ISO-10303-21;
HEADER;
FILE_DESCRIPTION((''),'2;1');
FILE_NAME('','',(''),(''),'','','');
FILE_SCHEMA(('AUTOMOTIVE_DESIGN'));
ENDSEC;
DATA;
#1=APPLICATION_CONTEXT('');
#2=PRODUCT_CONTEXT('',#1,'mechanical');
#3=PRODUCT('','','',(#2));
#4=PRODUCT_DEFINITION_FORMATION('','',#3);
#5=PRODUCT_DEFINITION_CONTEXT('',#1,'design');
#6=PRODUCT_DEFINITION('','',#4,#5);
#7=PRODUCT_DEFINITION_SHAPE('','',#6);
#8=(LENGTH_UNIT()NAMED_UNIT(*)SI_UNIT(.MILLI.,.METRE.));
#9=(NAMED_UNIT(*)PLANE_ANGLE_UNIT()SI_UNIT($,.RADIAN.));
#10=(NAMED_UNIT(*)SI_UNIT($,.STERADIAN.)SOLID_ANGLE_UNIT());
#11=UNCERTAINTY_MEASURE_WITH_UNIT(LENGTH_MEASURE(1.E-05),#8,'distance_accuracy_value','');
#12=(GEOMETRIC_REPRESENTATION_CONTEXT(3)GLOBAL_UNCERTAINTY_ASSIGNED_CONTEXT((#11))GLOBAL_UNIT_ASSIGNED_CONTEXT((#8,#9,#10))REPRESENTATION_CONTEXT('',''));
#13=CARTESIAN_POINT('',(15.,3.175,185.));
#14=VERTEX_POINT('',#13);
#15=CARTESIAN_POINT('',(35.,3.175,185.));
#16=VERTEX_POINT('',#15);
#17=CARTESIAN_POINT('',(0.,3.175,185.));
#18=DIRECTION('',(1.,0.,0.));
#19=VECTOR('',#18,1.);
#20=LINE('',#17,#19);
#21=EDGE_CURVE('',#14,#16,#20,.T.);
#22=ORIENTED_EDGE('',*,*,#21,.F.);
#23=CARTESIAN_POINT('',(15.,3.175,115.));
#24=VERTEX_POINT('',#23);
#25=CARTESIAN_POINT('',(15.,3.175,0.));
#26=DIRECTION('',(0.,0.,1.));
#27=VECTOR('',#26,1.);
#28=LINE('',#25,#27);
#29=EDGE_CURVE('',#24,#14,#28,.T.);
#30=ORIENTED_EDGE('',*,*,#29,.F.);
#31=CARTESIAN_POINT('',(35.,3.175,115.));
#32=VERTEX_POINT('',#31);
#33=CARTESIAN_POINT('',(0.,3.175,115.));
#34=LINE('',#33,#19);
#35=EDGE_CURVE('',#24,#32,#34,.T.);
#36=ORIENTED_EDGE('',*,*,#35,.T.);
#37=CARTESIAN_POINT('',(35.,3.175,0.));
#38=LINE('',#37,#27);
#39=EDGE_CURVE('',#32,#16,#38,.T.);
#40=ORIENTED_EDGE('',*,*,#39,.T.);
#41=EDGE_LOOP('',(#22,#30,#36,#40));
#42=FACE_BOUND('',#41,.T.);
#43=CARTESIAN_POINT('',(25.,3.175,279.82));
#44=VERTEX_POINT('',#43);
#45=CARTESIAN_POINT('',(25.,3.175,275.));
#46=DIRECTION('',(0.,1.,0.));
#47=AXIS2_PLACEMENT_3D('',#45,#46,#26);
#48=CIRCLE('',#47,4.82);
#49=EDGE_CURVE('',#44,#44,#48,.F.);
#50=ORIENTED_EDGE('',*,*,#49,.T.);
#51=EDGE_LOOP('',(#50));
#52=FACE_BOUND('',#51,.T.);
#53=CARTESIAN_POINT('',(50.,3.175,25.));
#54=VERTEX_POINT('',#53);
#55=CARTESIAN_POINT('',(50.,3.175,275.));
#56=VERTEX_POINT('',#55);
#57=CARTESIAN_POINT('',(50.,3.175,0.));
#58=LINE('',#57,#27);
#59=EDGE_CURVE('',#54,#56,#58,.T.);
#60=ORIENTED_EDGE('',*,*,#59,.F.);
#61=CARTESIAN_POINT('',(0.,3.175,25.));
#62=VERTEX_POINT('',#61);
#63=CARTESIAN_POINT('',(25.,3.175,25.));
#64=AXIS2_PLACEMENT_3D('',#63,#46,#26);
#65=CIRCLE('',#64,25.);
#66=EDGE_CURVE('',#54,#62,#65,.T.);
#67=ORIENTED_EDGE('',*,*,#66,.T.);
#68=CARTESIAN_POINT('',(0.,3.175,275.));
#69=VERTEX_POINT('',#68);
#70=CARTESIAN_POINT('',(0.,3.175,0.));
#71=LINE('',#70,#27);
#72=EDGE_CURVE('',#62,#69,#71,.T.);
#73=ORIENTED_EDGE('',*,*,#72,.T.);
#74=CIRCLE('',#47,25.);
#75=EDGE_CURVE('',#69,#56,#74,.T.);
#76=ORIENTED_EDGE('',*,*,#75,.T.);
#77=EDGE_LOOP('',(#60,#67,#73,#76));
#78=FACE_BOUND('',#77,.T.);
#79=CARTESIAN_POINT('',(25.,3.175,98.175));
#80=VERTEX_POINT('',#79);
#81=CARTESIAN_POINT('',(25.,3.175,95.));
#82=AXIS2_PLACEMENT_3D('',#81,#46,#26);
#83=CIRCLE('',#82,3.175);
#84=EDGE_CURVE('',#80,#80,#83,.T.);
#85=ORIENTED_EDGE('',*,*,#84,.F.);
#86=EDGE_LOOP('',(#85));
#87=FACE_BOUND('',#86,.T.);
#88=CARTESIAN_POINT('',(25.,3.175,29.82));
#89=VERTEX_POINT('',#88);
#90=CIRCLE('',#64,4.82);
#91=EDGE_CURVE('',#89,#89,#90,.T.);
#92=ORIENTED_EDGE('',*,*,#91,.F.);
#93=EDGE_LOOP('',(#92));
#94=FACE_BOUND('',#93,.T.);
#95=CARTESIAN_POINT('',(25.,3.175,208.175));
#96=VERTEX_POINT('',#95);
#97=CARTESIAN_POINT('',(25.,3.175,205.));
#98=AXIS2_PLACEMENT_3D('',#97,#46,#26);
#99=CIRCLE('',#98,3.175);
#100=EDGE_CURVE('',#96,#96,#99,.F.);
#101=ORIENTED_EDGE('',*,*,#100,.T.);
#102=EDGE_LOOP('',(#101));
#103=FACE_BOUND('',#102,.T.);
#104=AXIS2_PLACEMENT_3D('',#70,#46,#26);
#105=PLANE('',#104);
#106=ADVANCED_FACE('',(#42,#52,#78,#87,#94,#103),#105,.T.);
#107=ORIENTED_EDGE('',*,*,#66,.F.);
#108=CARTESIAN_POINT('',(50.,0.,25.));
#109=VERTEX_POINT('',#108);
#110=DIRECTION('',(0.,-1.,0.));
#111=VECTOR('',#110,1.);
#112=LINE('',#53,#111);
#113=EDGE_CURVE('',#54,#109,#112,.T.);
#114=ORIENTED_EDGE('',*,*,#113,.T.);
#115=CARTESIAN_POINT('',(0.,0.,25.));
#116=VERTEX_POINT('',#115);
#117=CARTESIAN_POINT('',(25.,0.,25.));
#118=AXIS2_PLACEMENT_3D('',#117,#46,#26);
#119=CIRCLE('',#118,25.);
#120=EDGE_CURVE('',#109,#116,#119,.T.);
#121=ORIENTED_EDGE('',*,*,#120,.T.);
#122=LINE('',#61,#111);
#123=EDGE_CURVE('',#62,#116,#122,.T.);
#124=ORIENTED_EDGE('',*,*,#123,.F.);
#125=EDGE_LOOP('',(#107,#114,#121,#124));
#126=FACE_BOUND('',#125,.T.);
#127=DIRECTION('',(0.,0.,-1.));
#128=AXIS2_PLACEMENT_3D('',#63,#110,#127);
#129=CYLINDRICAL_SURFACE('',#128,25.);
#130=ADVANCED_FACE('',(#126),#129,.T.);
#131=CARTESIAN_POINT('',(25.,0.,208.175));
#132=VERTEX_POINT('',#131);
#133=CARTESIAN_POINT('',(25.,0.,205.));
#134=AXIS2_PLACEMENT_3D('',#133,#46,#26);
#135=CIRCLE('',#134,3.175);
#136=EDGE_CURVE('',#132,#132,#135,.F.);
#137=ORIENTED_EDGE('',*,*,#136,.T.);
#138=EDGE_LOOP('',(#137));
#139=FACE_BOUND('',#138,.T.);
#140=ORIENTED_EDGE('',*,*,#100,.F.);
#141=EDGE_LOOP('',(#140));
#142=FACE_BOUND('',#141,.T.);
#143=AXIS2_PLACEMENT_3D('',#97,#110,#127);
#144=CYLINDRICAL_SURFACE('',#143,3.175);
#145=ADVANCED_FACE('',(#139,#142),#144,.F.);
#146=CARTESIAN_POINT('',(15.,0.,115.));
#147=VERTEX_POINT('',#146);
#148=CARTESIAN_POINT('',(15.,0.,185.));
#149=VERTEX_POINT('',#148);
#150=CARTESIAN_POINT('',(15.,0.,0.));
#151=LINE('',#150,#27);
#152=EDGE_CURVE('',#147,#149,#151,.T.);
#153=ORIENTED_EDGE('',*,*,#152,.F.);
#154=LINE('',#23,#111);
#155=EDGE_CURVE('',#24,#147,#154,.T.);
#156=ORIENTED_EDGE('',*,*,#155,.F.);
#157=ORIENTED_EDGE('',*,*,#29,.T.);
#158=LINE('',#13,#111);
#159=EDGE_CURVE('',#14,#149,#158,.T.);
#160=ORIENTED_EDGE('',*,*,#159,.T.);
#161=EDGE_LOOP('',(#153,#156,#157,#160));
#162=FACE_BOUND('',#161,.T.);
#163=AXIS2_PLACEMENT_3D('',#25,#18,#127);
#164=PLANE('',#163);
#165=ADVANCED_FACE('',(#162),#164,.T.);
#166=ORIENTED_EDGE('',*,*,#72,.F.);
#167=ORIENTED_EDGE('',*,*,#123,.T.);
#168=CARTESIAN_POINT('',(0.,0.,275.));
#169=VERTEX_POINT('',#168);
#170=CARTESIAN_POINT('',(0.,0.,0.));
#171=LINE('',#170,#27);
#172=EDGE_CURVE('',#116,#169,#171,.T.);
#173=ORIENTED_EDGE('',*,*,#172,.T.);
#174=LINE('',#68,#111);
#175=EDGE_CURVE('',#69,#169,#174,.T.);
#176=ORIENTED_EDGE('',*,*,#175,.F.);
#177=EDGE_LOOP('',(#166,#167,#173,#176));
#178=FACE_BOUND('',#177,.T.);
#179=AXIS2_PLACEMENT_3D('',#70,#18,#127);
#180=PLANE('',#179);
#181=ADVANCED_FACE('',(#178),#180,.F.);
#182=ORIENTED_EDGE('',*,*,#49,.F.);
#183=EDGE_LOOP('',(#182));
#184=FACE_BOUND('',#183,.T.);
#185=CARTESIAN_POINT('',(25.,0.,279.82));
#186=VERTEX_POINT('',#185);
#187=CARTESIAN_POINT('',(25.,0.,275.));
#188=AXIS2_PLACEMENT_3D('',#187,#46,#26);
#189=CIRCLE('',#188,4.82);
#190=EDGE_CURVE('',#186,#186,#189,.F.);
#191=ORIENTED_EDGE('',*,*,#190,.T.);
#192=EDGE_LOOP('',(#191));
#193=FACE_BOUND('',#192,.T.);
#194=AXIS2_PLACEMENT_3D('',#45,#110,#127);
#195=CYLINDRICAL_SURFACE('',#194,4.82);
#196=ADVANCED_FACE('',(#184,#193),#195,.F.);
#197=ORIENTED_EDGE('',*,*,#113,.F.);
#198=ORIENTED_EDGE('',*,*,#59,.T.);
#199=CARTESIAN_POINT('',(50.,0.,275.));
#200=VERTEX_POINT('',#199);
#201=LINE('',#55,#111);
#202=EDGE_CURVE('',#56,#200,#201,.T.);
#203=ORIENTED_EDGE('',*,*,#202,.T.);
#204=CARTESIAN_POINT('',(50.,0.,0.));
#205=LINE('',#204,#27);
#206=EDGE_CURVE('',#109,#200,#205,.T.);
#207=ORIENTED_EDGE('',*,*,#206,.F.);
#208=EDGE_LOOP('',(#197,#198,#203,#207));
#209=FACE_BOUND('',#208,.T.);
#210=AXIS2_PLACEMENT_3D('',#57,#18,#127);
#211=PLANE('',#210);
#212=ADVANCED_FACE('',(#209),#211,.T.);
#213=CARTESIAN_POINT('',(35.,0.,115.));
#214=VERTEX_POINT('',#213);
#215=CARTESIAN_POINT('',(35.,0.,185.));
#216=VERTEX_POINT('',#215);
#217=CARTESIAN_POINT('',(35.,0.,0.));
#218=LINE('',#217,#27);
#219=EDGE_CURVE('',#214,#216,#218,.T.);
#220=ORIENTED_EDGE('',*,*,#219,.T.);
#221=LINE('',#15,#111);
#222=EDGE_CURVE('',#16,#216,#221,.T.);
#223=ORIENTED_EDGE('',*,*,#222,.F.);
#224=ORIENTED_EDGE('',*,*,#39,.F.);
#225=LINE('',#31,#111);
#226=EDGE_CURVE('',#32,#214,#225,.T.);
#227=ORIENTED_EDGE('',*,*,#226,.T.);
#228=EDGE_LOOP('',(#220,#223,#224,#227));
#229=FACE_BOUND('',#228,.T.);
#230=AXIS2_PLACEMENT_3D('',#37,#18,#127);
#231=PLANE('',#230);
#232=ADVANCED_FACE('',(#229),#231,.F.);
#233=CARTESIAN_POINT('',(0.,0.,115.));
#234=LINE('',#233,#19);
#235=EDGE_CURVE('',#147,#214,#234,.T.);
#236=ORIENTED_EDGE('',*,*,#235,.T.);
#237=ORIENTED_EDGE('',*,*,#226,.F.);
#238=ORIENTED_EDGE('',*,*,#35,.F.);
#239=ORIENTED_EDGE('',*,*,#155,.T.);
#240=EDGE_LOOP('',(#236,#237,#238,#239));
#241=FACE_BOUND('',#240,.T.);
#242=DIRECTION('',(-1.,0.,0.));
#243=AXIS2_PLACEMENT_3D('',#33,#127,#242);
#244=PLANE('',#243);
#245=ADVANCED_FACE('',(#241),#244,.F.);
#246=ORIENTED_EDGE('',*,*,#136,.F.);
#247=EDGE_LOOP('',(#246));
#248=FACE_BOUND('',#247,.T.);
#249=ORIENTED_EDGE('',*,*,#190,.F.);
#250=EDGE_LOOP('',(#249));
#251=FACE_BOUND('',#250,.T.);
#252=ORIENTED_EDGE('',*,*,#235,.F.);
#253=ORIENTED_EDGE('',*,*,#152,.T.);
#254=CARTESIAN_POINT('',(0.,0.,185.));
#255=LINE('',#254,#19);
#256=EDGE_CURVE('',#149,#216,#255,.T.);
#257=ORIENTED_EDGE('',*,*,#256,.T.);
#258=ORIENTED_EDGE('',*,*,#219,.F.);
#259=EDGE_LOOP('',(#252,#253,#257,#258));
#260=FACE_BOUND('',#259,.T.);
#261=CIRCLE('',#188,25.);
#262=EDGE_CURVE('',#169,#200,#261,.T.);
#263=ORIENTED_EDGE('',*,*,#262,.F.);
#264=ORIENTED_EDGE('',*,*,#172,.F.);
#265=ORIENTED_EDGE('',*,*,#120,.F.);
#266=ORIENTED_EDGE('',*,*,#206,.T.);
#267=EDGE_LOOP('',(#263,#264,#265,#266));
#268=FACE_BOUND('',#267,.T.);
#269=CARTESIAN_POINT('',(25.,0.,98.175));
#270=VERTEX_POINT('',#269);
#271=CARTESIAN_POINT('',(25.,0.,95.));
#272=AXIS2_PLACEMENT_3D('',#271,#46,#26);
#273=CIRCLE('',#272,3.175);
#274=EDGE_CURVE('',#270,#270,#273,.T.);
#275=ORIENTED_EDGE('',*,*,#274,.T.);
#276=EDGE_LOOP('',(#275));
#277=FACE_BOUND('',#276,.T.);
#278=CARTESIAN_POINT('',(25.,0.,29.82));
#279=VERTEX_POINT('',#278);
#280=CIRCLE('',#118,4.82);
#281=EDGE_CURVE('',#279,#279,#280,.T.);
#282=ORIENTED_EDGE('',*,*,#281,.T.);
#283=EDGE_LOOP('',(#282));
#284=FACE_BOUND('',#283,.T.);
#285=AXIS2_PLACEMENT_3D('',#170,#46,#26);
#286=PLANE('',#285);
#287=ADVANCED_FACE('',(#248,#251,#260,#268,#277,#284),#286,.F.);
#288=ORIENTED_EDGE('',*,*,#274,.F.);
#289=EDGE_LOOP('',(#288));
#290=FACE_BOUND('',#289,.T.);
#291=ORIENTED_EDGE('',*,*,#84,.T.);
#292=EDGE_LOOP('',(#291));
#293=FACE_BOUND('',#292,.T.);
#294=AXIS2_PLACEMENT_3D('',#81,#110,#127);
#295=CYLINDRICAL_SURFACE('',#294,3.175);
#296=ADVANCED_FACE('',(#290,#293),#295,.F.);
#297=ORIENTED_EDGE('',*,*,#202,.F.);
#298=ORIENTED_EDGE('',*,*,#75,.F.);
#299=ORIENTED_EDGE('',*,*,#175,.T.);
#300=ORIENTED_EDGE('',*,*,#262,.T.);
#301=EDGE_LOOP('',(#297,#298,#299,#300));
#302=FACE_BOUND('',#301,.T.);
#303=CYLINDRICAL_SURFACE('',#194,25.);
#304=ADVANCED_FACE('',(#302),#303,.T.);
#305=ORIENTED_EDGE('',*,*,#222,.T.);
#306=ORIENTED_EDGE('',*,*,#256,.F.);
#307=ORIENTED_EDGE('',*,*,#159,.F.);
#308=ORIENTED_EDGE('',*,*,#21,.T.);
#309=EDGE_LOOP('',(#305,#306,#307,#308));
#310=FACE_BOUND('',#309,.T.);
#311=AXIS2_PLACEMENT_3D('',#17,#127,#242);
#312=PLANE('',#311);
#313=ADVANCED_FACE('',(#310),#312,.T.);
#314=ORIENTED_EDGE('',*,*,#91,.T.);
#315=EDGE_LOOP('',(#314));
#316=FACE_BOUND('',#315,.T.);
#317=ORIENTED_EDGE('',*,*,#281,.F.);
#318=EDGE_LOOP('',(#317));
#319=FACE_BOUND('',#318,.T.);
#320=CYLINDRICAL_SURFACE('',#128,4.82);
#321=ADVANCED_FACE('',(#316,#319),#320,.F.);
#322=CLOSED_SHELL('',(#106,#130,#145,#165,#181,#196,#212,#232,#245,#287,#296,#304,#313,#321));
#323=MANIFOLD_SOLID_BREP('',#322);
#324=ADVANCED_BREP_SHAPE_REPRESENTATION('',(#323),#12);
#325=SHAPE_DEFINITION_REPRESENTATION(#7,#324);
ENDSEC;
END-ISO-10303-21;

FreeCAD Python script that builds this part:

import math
import FreeCAD as App
import Part
import Sketcher
from FreeCAD import Vector


def add_polygon(sketch, points):
    """Adds a closed chain of lines whose ends are joined by coincident constraints."""
    first, n = sketch.GeometryCount, len(points)
    for a, b in zip(points, points[1:] + points[:1]):
        sketch.addGeometry(Part.LineSegment(App.Vector(*a, 0), App.Vector(*b, 0)), False)
    for i in range(n):
        sketch.addConstraint(Sketcher.Constraint("Coincident", first + i, 2, first + (i + 1) % n, 1))

doc = App.newDocument("Part")
body = doc.addObject("PartDesign::Body", "Body")

# Sketch on XZ plane
sketch1 = body.newObject("Sketcher::SketchObject", "Sketch")
sketch1.AttachmentSupport = (doc.getObject("XZ_Plane"), [""])
sketch1.MapMode = "FlatFace"
sketch1.addGeometry(Part.ArcOfCircle(Part.Circle(Vector(25, 25, 0), Vector(0, 0, 1), 25), math.radians(180), math.radians(360)), False)  # 0
sketch1.addGeometry(Part.LineSegment(Vector(0, 25, 0), Vector(0, 275, 0)), False)  # 1
sketch1.addGeometry(Part.ArcOfCircle(Part.Circle(Vector(25, 275, 0), Vector(0, 0, 1), 25), math.radians(0), math.radians(180)), False)  # 2
sketch1.addGeometry(Part.LineSegment(Vector(50, 275, 0), Vector(50, 25, 0)), False)  # 3
sketch1.addGeometry(Part.Circle(Vector(25, 275, 0), Vector(0, 0, 1), 4.82), False)  # 4
sketch1.addGeometry(Part.Circle(Vector(25, 205, 0), Vector(0, 0, 1), 3.175), False)  # 5
add_polygon(sketch1, [(35, 185), (15, 185), (15, 115), (35, 115)])  # lines 6-9
sketch1.addGeometry(Part.Circle(Vector(25, 95, 0), Vector(0, 0, 1), 3.175), False)  # 10
sketch1.addGeometry(Part.Circle(Vector(25, 25, 0), Vector(0, 0, 1), 4.82), False)  # 11
sketch1.addConstraint(Sketcher.Constraint("Tangent", 0, 1, 1, 1))
sketch1.addConstraint(Sketcher.Constraint("Tangent", 1, 2, 2, 2))
sketch1.addConstraint(Sketcher.Constraint("Tangent", 2, 1, 3, 1))
sketch1.addConstraint(Sketcher.Constraint("Tangent", 3, 2, 0, 2))
sketch1.addConstraint(Sketcher.Constraint("Vertical", 1))
sketch1.addConstraint(Sketcher.Constraint("Vertical", 3))
sketch1.addConstraint(Sketcher.Constraint("Horizontal", 6))
sketch1.addConstraint(Sketcher.Constraint("Vertical", 7))
sketch1.addConstraint(Sketcher.Constraint("Horizontal", 8))
sketch1.addConstraint(Sketcher.Constraint("Vertical", 9))
sketch1.addConstraint(Sketcher.Constraint("Coincident", 4, 3, 2, 3))
sketch1.addConstraint(Sketcher.Constraint("Coincident", 11, 3, 0, 3))
sketch1.addConstraint(Sketcher.Constraint("Equal", 5, 10))
sketch1.addConstraint(Sketcher.Constraint("Equal", 4, 11))
sketch1.addConstraint(Sketcher.Constraint("PointOnObject", 0, 1, -2))
sketch1.addConstraint(Sketcher.Constraint("Vertical", 4, 3, 5, 3))
sketch1.addConstraint(Sketcher.Constraint("Vertical", 5, 3, 10, 3))
sketch1.addConstraint(Sketcher.Constraint("Radius", 0, 25.0))
sketch1.addConstraint(Sketcher.Constraint("Diameter", 4, 9.64))
sketch1.addConstraint(Sketcher.Constraint("Diameter", 5, 6.35))
sketch1.addConstraint(Sketcher.Constraint("DistanceX", 6, 2, 6, 1, 20.0))
sketch1.addConstraint(Sketcher.Constraint("DistanceY", 1, 1, 1, 2, 250.0))
sketch1.addConstraint(Sketcher.Constraint("DistanceY", 7, 2, 7, 1, 70.0))
sketch1.addConstraint(Sketcher.Constraint("DistanceY", -1, 1, 0, 3, 25.0))
sketch1.addConstraint(Sketcher.Constraint("DistanceY", -1, 1, 5, 3, 205.0))
sketch1.addConstraint(Sketcher.Constraint("DistanceY", -1, 1, 10, 3, 95.0))
sketch1.addConstraint(Sketcher.Constraint("DistanceX", -1, 1, 6, 2, 15.0))
sketch1.addConstraint(Sketcher.Constraint("DistanceY", -1, 1, 6, 2, 185.0))
pad1 = body.newObject("PartDesign::Pad", "Pad")
pad1.Profile = sketch1
pad1.Length = 3.175
pad1.Reversed = True

doc.recompute()
